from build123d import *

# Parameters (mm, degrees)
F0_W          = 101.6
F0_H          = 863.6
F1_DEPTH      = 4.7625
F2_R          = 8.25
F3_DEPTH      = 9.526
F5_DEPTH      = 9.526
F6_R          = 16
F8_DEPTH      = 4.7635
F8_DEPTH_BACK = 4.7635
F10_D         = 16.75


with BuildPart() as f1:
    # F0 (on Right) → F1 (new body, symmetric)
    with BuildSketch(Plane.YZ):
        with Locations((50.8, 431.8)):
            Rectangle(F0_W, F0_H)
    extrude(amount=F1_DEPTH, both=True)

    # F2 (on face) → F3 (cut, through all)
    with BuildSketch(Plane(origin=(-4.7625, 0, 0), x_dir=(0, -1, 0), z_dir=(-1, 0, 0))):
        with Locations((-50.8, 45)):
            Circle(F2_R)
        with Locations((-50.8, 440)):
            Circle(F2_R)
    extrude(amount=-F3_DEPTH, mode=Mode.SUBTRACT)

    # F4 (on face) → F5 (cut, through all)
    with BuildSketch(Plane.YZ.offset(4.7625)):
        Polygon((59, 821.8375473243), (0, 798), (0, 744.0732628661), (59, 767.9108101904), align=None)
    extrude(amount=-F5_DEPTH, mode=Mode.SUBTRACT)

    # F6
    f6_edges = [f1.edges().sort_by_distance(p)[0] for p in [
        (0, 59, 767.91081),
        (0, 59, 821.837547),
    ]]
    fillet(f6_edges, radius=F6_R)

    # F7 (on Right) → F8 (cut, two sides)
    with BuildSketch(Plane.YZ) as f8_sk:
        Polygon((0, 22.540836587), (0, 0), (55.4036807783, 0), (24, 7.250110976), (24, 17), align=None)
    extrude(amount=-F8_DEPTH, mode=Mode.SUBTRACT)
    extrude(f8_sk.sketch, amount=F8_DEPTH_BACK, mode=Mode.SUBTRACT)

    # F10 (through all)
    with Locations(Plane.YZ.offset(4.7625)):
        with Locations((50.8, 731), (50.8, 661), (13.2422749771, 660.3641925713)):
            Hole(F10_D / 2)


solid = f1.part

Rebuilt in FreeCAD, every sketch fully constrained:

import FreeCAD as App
import Part
import Sketcher

V = App.Vector
Q = App.Units.Quantity


def edges_at(feature, points):
    """Names of the edges that pass closest to the given points."""
    edges = feature.Shape.Edges
    near = lambda p: min(range(len(edges)), key=lambda i: edges[i].distToShape(Part.Vertex(*p))[0])
    return sorted({f"Edge{near(p) + 1}" for p in points})


def add_polygon(sketch, points):
    """Adds a closed chain of lines whose ends are joined by coincident constraints."""
    first, n = sketch.GeometryCount, len(points)
    for a, b in zip(points, points[1:] + points[:1]):
        sketch.addGeometry(Part.LineSegment(App.Vector(*a, 0), App.Vector(*b, 0)), False)
    for i in range(n):
        sketch.addConstraint(Sketcher.Constraint("Coincident", first + i, 2, first + (i + 1) % n, 1))

doc = App.newDocument("Part")
body = doc.addObject("PartDesign::Body", "Body")

# Sketch on YZ plane
sketch1 = doc.addObject("Sketcher::SketchObject", "Sketch")
body.addObject(sketch1)
sketch1.AttachmentSupport = (doc.YZ_Plane, [""])
sketch1.MapMode = "FlatFace"
add_polygon(sketch1, [(0, 863.6), (0, 0), (101.6, 0), (101.6, 863.6)])  # lines 0-3
sketch1.addConstraint([
    Sketcher.Constraint("Vertical", 0),
    Sketcher.Constraint("Horizontal", 1),
    Sketcher.Constraint("Vertical", 2),
    Sketcher.Constraint("Horizontal", 3),
    Sketcher.Constraint("Coincident", 0, 2, -1, 1),
    Sketcher.Constraint("DistanceX", 1, 1, 1, 2, Q("4 in")),
    Sketcher.Constraint("DistanceY", 0, 2, 0, 1, Q("34 in")),
])
pad1 = doc.addObject("PartDesign::Pad", "Pad")
body.addObject(pad1)
pad1.Profile = sketch1
pad1.Length = Q("0.375 in")
pad1.Midplane = True

# Sketch on YZ plane
sketch2 = doc.addObject("Sketcher::SketchObject", "Sketch001")
body.addObject(sketch2)
sketch2.AttachmentSupport = (doc.YZ_Plane, [""])
sketch2.MapMode = "FlatFace"
sketch2.AttachmentOffset = App.Placement(V(0, 0, -0.1875 * 25.4), App.Rotation())
sketch2.addGeometry([
    Part.Circle(V(50.8, 45, 0), V(0, 0, 1), 8.25),
    Part.Circle(V(50.8, 440, 0), V(0, 0, 1), 8.25),
], False)
sketch2.addConstraint([
    Sketcher.Constraint("Equal", 0, 1),
    Sketcher.Constraint("Vertical", 0, 3, 1, 3),
    Sketcher.Constraint("DistanceX", -1, 1, 0, 3, Q("2 in")),
    Sketcher.Constraint("Diameter", 0, Q("16.5 mm")),
    Sketcher.Constraint("DistanceY", -1, 1, 0, 3, Q("45 mm")),
    Sketcher.Constraint("DistanceY", -1, 1, 1, 3, Q("440 mm")),
])
pocket1 = doc.addObject("PartDesign::Pocket", "Pocket")
body.addObject(pocket1)
pocket1.Profile = sketch2
pocket1.Type = "ThroughAll"
pocket1.Reversed = True

# Sketch on YZ plane
sketch3 = doc.addObject("Sketcher::SketchObject", "Sketch002")
body.addObject(sketch3)
sketch3.AttachmentSupport = (doc.YZ_Plane, [""])
sketch3.MapMode = "FlatFace"
sketch3.AttachmentOffset = App.Placement(V(0, 0, 0.1875 * 25.4), App.Rotation())
add_polygon(sketch3, [(59, 821.837547), (0, 798), (0, 744.073263), (59, 767.91081)])  # lines 0-3
sketch3.addConstraint([
    Sketcher.Constraint("Vertical", 1),
    Sketcher.Constraint("Vertical", 3),
    Sketcher.Constraint("PointOnObject", 0, 2, -2),
    Sketcher.Constraint("Parallel", 0, 2),
    Sketcher.Constraint("Angle", 0, Q("-158 deg")),
    Sketcher.Constraint("DistanceY", 1, 2, 1, 1, Q("2.1230999 in")),
    Sketcher.Constraint("DistanceY", -1, 1, 0, 2, Q("798 mm")),
    Sketcher.Constraint("DistanceX", -1, 1, 2, 2, Q("59 mm")),
])
pocket2 = doc.addObject("PartDesign::Pocket", "Pocket001")
body.addObject(pocket2)
pocket2.Profile = sketch3
pocket2.Type = "ThroughAll"
doc.recompute()

fillet = doc.addObject("PartDesign::Fillet", "Fillet")
body.addObject(fillet)
fillet.Base = (pocket2, edges_at(pocket2, [(0, 59, 767.911), (0, 59, 821.838)]))
fillet.Radius = 16

# Sketch on YZ plane
sketch4 = doc.addObject("Sketcher::SketchObject", "Sketch003")
body.addObject(sketch4)
sketch4.AttachmentSupport = (doc.YZ_Plane, [""])
sketch4.MapMode = "FlatFace"
add_polygon(sketch4, [(0, 22.540837), (0, 0), (55.403681, 0), (24, 7.250111), (24, 17)])  # lines 0-4
sketch4.addConstraint([
    Sketcher.Constraint("Vertical", 0),
    Sketcher.Constraint("Horizontal", 1),
    Sketcher.Constraint("Vertical", 3),
    Sketcher.Constraint("Coincident", 0, 2, -1, 1),
    Sketcher.Constraint("Parallel", 2, 4),
    Sketcher.Constraint("Angle", 2, Q("167 deg")),
    Sketcher.Constraint("Distance", 4, Q("24.631299 mm")),
    Sketcher.Constraint("DistanceX", 1, 1, 1, 2, Q("55.403681 mm")),
    Sketcher.Constraint("DistanceY", 3, 1, 3, 2, Q("9.749889 mm")),
])
pocket3 = doc.addObject("PartDesign::Pocket", "Pocket002")
body.addObject(pocket3)
pocket3.Profile = sketch4
pocket3.Type = "ThroughAll"
pocket3.Midplane = True

# Sketch on YZ plane
sketch5 = doc.addObject("Sketcher::SketchObject", "Sketch004")
body.addObject(sketch5)
sketch5.AttachmentSupport = (doc.YZ_Plane, [""])
sketch5.MapMode = "FlatFace"
sketch5.AttachmentOffset = App.Placement(V(0, 0, 0.1875 * 25.4), App.Rotation())
sketch5.addGeometry([
    Part.Circle(V(50.8, 731, 0), V(0, 0, 1), 8.375),
    Part.Circle(V(50.8, 661, 0), V(0, 0, 1), 8.375),
    Part.Circle(V(13.242275, 660.364193, 0), V(0, 0, 1), 8.375),
], False)
sketch5.addConstraint([
    Sketcher.Constraint("Equal", 0, 1),
    Sketcher.Constraint("Equal", 1, 2),
    Sketcher.Constraint("Vertical", 0, 3, 1, 3),
    Sketcher.Constraint("DistanceX", -1, 1, 0, 3, Q("2 in")),
    Sketcher.Constraint("Diameter", 0, Q("16.75 mm")),
    Sketcher.Constraint("DistanceY", -1, 1, 0, 3, Q("731 mm")),
    Sketcher.Constraint("DistanceY", -1, 1, 1, 3, Q("661 mm")),
    Sketcher.Constraint("DistanceX", -1, 1, 2, 3, Q("13.242275 mm")),
    Sketcher.Constraint("DistanceY", -1, 1, 2, 3, Q("660.364193 mm")),
])
doc.recompute()
hole = doc.addObject("PartDesign::Hole", "Hole")
body.addObject(hole)
hole.Profile = sketch5
hole.ThreadType = "None"
hole.Diameter = 16.75
hole.DepthType = "ThroughAll"

doc.recompute()
